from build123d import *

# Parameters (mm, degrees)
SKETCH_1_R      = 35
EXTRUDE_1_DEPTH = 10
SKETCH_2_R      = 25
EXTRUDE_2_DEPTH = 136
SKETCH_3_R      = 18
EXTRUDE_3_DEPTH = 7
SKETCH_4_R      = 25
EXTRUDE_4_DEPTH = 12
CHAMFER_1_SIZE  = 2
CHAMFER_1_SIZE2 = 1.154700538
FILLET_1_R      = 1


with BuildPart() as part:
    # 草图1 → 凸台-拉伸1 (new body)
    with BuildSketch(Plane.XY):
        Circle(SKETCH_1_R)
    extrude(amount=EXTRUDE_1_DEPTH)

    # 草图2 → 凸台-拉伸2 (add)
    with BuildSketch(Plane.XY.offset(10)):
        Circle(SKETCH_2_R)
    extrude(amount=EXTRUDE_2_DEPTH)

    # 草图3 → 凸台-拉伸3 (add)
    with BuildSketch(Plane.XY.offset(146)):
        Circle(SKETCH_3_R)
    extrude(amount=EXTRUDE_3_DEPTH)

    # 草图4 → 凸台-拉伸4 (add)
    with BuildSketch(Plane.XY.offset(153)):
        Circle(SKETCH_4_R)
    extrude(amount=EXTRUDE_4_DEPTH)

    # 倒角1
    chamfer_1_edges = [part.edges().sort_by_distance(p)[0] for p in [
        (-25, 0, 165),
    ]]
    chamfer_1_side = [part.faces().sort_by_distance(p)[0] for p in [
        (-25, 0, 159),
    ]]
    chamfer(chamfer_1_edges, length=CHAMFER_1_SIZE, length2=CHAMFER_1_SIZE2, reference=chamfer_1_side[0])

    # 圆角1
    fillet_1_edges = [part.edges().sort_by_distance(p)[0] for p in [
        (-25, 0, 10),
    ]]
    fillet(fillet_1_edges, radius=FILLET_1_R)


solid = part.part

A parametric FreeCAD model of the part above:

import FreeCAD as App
import Part
import Sketcher
from FreeCAD import Vector


def edges_at(feature, points):
    """Names of the edges that pass closest to the given points."""
    edges = feature.Shape.Edges
    near = lambda p: min(range(len(edges)), key=lambda i: edges[i].distToShape(Part.Vertex(*p))[0])
    return sorted({f"Edge{near(p) + 1}" for p in points})

doc = App.newDocument("Part")
body = doc.addObject("PartDesign::Body", "Body")

sketch1 = body.newObject("Sketcher::SketchObject", "Sketch")
sketch1.AttachmentSupport = (doc.getObject("XY_Plane"), [""])
sketch1.MapMode = "FlatFace"
sketch1.addGeometry(Part.Circle(Vector(0, 0, 0), Vector(0, 0, 1), 35), False)
sketch1.addConstraint([
    Sketcher.Constraint("Coincident", 0, 3, -1, 1),
    Sketcher.Constraint("Diameter", 0, 70.0),
])
pad1 = body.newObject("PartDesign::Pad", "Pad")
pad1.Profile = sketch1
pad1.Length = 10

sketch2 = body.newObject("Sketcher::SketchObject", "Sketch001")
sketch2.AttachmentSupport = (doc.getObject("XY_Plane"), [""])
sketch2.MapMode = "FlatFace"
sketch2.AttachmentOffset = App.Placement(Vector(0, 0, 10), App.Rotation())
sketch2.addGeometry(Part.Circle(Vector(0, 0, 0), Vector(0, 0, 1), 25), False)
sketch2.addConstraint([
    Sketcher.Constraint("Coincident", 0, 3, -1, 1),
    Sketcher.Constraint("Diameter", 0, 50.0),
])
pad2 = body.newObject("PartDesign::Pad", "Pad001")
pad2.Profile = sketch2
pad2.Length = 136

sketch3 = body.newObject("Sketcher::SketchObject", "Sketch002")
sketch3.AttachmentSupport = (doc.getObject("XY_Plane"), [""])
sketch3.MapMode = "FlatFace"
sketch3.AttachmentOffset = App.Placement(Vector(0, 0, 146), App.Rotation())
sketch3.addGeometry(Part.Circle(Vector(0, 0, 0), Vector(0, 0, 1), 18), False)
sketch3.addConstraint([
    Sketcher.Constraint("Coincident", 0, 3, -1, 1),
    Sketcher.Constraint("Diameter", 0, 36.0),
])
pad3 = body.newObject("PartDesign::Pad", "Pad002")
pad3.Profile = sketch3
pad3.Length = 7

sketch4 = body.newObject("Sketcher::SketchObject", "Sketch003")
sketch4.AttachmentSupport = (doc.getObject("XY_Plane"), [""])
sketch4.MapMode = "FlatFace"
sketch4.AttachmentOffset = App.Placement(Vector(0, 0, 153), App.Rotation())
sketch4.addGeometry(Part.Circle(Vector(0, 0, 0), Vector(0, 0, 1), 25), False)
sketch4.addConstraint([
    Sketcher.Constraint("Coincident", 0, 3, -1, 1),
    Sketcher.Constraint("Diameter", 0, 50.0),
])
pad4 = body.newObject("PartDesign::Pad", "Pad003")
pad4.Profile = sketch4
pad4.Length = 12
doc.recompute()

chamfer = body.newObject("PartDesign::Chamfer", "Chamfer")
chamfer.Base = (pad4, edges_at(pad4, [(-25, 0, 165)]))
chamfer.ChamferType = "Two distances"
chamfer.Size = 2
chamfer.Size2 = 1.154701
doc.recompute()

fillet = body.newObject("PartDesign::Fillet", "Fillet")
fillet.Base = (chamfer, edges_at(chamfer, [(-25, 0, 10)]))
fillet.Radius = 1

doc.recompute()
